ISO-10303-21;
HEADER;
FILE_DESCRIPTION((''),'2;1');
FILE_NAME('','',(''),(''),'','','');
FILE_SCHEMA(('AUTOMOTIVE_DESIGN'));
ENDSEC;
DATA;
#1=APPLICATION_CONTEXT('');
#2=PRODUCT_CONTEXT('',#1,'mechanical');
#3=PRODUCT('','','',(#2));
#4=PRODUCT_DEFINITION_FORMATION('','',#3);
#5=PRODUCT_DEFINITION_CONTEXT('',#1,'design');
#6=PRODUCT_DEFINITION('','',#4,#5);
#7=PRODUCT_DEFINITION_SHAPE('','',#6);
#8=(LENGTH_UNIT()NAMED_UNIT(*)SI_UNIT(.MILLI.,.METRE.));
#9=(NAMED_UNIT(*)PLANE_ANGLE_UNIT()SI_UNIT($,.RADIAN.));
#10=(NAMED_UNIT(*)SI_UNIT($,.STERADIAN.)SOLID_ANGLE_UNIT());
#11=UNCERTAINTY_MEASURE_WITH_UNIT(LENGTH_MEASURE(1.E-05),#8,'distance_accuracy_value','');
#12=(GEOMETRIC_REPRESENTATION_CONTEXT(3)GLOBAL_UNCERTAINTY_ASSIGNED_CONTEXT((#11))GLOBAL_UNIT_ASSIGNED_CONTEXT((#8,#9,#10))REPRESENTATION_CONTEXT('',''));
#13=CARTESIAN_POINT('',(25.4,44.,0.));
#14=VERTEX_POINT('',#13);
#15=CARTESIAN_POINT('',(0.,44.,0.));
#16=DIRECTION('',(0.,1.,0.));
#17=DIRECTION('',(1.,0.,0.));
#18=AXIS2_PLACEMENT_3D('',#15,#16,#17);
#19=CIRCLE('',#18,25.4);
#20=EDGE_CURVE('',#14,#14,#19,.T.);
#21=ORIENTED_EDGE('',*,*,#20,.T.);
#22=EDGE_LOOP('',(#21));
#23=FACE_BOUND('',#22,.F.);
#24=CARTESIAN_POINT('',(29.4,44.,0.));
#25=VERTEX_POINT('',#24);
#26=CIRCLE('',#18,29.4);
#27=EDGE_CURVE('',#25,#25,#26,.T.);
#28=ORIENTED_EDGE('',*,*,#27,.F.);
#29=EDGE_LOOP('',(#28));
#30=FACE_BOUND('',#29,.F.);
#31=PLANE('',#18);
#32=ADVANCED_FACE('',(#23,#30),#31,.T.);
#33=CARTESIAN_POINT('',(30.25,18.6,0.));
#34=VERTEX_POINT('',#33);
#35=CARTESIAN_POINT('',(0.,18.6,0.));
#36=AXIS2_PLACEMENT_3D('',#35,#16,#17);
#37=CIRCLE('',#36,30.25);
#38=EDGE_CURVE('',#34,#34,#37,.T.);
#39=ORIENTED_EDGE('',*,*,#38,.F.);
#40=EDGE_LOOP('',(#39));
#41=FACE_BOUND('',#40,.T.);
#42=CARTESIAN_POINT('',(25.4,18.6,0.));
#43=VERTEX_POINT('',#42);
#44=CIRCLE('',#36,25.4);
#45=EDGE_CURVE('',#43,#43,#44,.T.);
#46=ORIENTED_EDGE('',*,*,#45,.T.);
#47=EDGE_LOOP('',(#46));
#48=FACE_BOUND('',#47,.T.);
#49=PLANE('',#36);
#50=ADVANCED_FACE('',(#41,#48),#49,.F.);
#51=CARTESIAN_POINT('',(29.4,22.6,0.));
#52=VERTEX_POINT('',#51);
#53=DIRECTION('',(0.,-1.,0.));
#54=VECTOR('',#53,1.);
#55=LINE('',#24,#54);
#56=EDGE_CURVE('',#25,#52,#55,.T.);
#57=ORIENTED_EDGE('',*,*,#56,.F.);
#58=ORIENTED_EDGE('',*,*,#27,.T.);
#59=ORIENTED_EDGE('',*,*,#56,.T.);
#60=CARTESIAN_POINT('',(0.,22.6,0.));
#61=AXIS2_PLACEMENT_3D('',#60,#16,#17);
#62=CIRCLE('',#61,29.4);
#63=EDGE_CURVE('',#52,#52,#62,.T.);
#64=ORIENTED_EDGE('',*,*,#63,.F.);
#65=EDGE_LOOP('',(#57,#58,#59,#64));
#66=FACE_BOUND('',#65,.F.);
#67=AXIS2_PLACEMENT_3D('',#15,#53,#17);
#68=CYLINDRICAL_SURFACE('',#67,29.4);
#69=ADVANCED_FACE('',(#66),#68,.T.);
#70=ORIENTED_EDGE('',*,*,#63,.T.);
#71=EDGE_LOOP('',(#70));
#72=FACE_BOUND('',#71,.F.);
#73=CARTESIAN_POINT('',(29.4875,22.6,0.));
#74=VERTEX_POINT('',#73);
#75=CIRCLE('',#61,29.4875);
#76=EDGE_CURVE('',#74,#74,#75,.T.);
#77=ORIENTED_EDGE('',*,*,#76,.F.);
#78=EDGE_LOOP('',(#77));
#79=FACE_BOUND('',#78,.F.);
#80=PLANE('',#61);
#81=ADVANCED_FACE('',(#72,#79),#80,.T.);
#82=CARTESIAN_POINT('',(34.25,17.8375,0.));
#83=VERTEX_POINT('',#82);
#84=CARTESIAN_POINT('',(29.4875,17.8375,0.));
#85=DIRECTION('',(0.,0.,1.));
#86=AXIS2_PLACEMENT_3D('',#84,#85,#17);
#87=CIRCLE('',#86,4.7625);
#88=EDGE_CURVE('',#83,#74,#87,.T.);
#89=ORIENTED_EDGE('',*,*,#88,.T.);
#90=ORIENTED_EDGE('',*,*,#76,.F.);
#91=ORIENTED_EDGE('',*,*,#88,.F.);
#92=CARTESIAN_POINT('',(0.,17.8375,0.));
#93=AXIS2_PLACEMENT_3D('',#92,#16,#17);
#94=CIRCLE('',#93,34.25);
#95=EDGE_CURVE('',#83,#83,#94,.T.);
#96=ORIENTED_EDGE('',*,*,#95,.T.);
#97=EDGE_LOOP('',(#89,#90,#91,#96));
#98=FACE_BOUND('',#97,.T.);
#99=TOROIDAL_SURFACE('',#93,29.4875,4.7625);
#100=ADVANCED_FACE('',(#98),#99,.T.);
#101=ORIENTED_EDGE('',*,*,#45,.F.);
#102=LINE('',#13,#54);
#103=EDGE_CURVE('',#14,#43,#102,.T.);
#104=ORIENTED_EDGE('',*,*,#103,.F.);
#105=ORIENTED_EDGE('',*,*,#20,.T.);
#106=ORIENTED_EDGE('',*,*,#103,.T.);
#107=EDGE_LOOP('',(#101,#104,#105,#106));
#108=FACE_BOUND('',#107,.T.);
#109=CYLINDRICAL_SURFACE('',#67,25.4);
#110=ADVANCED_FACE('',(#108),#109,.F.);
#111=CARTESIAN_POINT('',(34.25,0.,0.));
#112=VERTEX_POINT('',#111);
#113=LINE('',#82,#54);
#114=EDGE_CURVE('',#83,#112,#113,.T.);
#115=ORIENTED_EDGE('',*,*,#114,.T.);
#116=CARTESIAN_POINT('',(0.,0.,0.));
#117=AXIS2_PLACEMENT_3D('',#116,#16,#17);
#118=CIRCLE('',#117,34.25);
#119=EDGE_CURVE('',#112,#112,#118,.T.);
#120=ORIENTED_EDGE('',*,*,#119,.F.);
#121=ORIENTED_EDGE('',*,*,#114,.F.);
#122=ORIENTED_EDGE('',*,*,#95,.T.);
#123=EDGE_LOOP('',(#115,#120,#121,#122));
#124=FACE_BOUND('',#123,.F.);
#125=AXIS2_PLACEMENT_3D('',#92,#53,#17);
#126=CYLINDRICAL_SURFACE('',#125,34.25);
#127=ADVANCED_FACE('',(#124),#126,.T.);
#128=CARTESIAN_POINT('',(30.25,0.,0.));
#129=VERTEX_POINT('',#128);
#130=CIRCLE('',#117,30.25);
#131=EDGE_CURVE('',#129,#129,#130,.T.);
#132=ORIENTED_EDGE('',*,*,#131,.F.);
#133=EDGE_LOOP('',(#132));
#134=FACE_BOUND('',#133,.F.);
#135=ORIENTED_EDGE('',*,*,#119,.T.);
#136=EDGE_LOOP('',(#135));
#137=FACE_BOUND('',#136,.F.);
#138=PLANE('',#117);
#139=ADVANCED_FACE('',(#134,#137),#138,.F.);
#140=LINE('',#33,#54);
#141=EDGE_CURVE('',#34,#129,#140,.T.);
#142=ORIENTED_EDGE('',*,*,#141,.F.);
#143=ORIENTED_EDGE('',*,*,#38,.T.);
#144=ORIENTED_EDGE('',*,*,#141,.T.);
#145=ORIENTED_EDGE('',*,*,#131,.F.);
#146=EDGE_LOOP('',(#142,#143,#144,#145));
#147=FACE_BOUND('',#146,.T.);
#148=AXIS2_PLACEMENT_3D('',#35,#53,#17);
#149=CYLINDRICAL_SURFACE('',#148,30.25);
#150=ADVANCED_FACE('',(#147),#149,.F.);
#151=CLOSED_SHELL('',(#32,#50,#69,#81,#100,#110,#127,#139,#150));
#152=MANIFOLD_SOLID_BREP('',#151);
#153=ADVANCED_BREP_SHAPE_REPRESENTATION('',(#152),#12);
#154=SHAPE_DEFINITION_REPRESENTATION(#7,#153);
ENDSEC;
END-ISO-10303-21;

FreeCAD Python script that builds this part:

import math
import FreeCAD as App
import Part
import Sketcher

V = App.Vector

doc = App.newDocument("Part")
params = doc.addObject("Spreadsheet::Sheet", "Params")
for row, (alias, value) in enumerate([
    ("sketch1_width", "4 mm"),
    ("sketch1_height", "25.4 mm"),
    ("revolution_angle", "360 deg"),
], start=1):
    params.set(f"A{row}", alias)
    params.set(f"B{row}", "=" + value)
    params.setAlias(f"B{row}", alias)

body = doc.addObject("PartDesign::Body", "Body")

sketch1 = body.newObject("Sketcher::SketchObject", "Sketch")
sketch1.AttachmentSupport = (doc.getObject("XY_Plane"), [""])
sketch1.MapMode = "FlatFace"
sketch1.addGeometry([
    Part.LineSegment(V(29.4, 22.6, 0), V(29.4, 44, 0)),
    Part.LineSegment(V(29.4, 44, 0), V(25.4, 44, 0)),
    Part.LineSegment(V(25.4, 44, 0), V(25.4, 18.6, 0)),
    Part.LineSegment(V(25.4, 18.6, 0), V(30.25, 18.6, 0)),
    Part.LineSegment(V(30.25, 18.6, 0), V(30.25, 0, 0)),
    Part.LineSegment(V(30.25, 0, 0), V(34.25, 0, 0)),
    Part.LineSegment(V(34.25, 0, 0), V(34.25, 17.84, 0)),
    Part.ArcOfCircle(Part.Circle(V(29.49, 17.84, 0), V(0, 0, 1), 4.76), math.radians(0), math.radians(90)),
    Part.LineSegment(V(29.49, 22.6, 0), V(29.4, 22.6, 0)),
], False)
sketch1.addConstraint([
    Sketcher.Constraint("Coincident", 0, 2, 1, 1),
    Sketcher.Constraint("Coincident", 1, 2, 2, 1),
    Sketcher.Constraint("Coincident", 2, 2, 3, 1),
    Sketcher.Constraint("Coincident", 3, 2, 4, 1),
    Sketcher.Constraint("Coincident", 4, 2, 5, 1),
    Sketcher.Constraint("Coincident", 5, 2, 6, 1),
    Sketcher.Constraint("Tangent", 6, 2, 7, 1),
    Sketcher.Constraint("Tangent", 7, 2, 8, 1),
    Sketcher.Constraint("Coincident", 8, 2, 0, 1),
    Sketcher.Constraint("Vertical", 0),
    Sketcher.Constraint("Horizontal", 1),
    Sketcher.Constraint("Vertical", 2),
    Sketcher.Constraint("Horizontal", 3),
    Sketcher.Constraint("Vertical", 4),
    Sketcher.Constraint("Horizontal", 5),
    Sketcher.Constraint("Vertical", 6),
    Sketcher.Constraint("Horizontal", 8),
    Sketcher.Constraint("PointOnObject", 4, 2, -1),
    Sketcher.Constraint("Equal", 1, 5),
    Sketcher.Constraint("DistanceX", 1, 2, 1, 1, 4.0),
    Sketcher.Constraint("DistanceY", 2, 2, 2, 1, 25.4),
    Sketcher.Constraint("DistanceY", -1, 1, 0, 2, 44.0),
    Sketcher.Constraint("DistanceY", 3, 2, 7, 2, 4.0),
    Sketcher.Constraint("DistanceX", -1, 1, 1, 2, 25.4),
    Sketcher.Constraint("Radius", 7, 4.7625),
    Sketcher.Constraint("DistanceX", -1, 1, 3, 2, 30.25),
])
sketch1.setExpression("Constraints[19]", "Params.sketch1_width")
sketch1.setExpression("Constraints[20]", "Params.sketch1_height")
revolution = body.newObject("PartDesign::Revolution", "Revolution")
revolution.Profile = sketch1
revolution.ReferenceAxis = (sketch1, ["V_Axis"])
revolution.setExpression("Angle", "Params.revolution_angle")

doc.recompute()
